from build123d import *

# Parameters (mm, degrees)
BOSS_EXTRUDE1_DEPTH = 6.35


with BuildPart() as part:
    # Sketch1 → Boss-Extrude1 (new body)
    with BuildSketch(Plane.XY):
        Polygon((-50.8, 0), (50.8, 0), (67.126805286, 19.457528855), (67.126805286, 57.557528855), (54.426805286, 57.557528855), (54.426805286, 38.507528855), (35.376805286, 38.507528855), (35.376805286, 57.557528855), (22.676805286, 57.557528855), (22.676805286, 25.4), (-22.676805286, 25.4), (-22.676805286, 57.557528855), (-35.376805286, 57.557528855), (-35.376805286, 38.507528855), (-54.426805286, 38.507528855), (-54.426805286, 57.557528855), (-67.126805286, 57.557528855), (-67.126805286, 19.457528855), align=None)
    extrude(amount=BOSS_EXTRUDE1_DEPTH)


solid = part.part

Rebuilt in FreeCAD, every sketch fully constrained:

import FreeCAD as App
import Part
import Sketcher

V = App.Vector
Q = App.Units.Quantity


def add_polygon(sketch, points):
    """Adds a closed chain of lines whose ends are joined by coincident constraints."""
    first, n = sketch.GeometryCount, len(points)
    for a, b in zip(points, points[1:] + points[:1]):
        sketch.addGeometry(Part.LineSegment(App.Vector(*a, 0), App.Vector(*b, 0)), False)
    for i in range(n):
        sketch.addConstraint(Sketcher.Constraint("Coincident", first + i, 2, first + (i + 1) % n, 1))

doc = App.newDocument("Part")
body = doc.addObject("PartDesign::Body", "Body")

# Sketch on XY plane
sketch1 = doc.addObject("Sketcher::SketchObject", "Sketch")
body.addObject(sketch1)
sketch1.AttachmentSupport = (doc.XY_Plane, [""])
sketch1.MapMode = "FlatFace"
add_polygon(sketch1, [(-51, 0), (51, 0), (67, 19), (67, 58), (54, 58), (54, 39), (35, 39), (35, 58), (23, 58), (23, 25), (-23, 25), (-23, 58), (-35, 58), (-35, 39), (-54, 39), (-54, 58), (-67, 58), (-67, 19)])  # lines 0-17
sketch1.addConstraint(Sketcher.Constraint("Horizontal", 0))
sketch1.addConstraint(Sketcher.Constraint("Vertical", 2))
sketch1.addConstraint(Sketcher.Constraint("Horizontal", 3))
sketch1.addConstraint(Sketcher.Constraint("Vertical", 4))
sketch1.addConstraint(Sketcher.Constraint("Horizontal", 5))
sketch1.addConstraint(Sketcher.Constraint("Vertical", 6))
sketch1.addConstraint(Sketcher.Constraint("Horizontal", 7))
sketch1.addConstraint(Sketcher.Constraint("Vertical", 8))
sketch1.addConstraint(Sketcher.Constraint("Horizontal", 9))
sketch1.addConstraint(Sketcher.Constraint("Vertical", 10))
sketch1.addConstraint(Sketcher.Constraint("Horizontal", 11))
sketch1.addConstraint(Sketcher.Constraint("Vertical", 12))
sketch1.addConstraint(Sketcher.Constraint("Horizontal", 13))
sketch1.addConstraint(Sketcher.Constraint("Vertical", 14))
sketch1.addConstraint(Sketcher.Constraint("Horizontal", 15))
sketch1.addConstraint(Sketcher.Constraint("Vertical", 16))
sketch1.addConstraint(Sketcher.Constraint("Symmetric", 0, 2, 17, 2, -1, 1))
sketch1.addConstraint(Sketcher.Constraint("Symmetric", 7, 2, 10, 2, -2))
sketch1.addConstraint(Sketcher.Constraint("Symmetric", 5, 2, 12, 2, -2))
sketch1.addConstraint(Sketcher.Constraint("Symmetric", 3, 2, 14, 2, -2))
sketch1.addConstraint(Sketcher.Constraint("Symmetric", 1, 2, 16, 2, -2))
sketch1.addConstraint(Sketcher.Constraint("Horizontal", 3, 2, 6, 2))
sketch1.addConstraint(Sketcher.Constraint("Equal", 3, 7))
sketch1.addConstraint(Sketcher.Constraint("Equal", 13, 4))
sketch1.addConstraint(Sketcher.Constraint("DistanceX", 0, 1, 0, 2, Q("4 in")))
sketch1.addConstraint(Sketcher.Constraint("Distance", 1, Q("1 in")))
sketch1.addConstraint(Sketcher.Constraint("DistanceX", 3, 2, 3, 1, Q("0.5 in")))
sketch1.addConstraint(Sketcher.Constraint("DistanceY", 2, 1, 2, 2, Q("1.5 in")))
sketch1.addConstraint(Sketcher.Constraint("DistanceY", -1, 1, 8, 2, Q("1 in")))
sketch1.addConstraint(Sketcher.Constraint("Angle", 1, Q("50 deg")))
sketch1.addConstraint(Sketcher.Constraint("DistanceX", 5, 2, 5, 1, Q("0.75 in")))
pad1 = doc.addObject("PartDesign::Pad", "Pad")
body.addObject(pad1)
pad1.Profile = sketch1
pad1.Length = Q("0.25 in")

doc.recompute()
